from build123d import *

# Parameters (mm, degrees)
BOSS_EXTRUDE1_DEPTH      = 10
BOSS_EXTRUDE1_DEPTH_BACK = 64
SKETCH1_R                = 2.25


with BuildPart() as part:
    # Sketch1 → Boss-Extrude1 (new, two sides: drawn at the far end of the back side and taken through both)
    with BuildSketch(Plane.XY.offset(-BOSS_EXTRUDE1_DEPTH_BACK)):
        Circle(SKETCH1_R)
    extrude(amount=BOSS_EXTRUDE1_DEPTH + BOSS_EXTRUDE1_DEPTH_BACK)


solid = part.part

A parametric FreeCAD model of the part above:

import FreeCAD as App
import Part
import Sketcher

V = App.Vector

doc = App.newDocument("Part")
params = doc.addObject("Spreadsheet::Sheet", "Params")
for row, (alias, value) in enumerate([
    ("sketch1_diameter", "4.5 mm"),
    ("pad1_length", "10 mm"),
    ("pad1_length2", "64 mm"),
], start=1):
    params.set(f"A{row}", alias)
    params.set(f"B{row}", "=" + value)
    params.setAlias(f"B{row}", alias)

body = doc.addObject("PartDesign::Body", "Body")

# Sketch on XY plane
sketch1 = body.newObject("Sketcher::SketchObject", "Sketch")
sketch1.AttachmentSupport = (doc.getObject("XY_Plane"), [""])
sketch1.MapMode = "FlatFace"
sketch1.addGeometry(Part.Circle(V(0, 0, 0), V(0, 0, 1), 2.2), False)
sketch1.addConstraint(Sketcher.Constraint("Coincident", 0, 3, -1, 1))
sketch1.addConstraint(Sketcher.Constraint("Diameter", 0, 4.5))
sketch1.setExpression("Constraints[1]", "Params.sketch1_diameter")
pad1 = body.newObject("PartDesign::Pad", "Pad")
pad1.Profile = sketch1
pad1.Type = "TwoLengths"
pad1.setExpression("Length", "Params.pad1_length")
pad1.setExpression("Length2", "Params.pad1_length2")

doc.recompute()
